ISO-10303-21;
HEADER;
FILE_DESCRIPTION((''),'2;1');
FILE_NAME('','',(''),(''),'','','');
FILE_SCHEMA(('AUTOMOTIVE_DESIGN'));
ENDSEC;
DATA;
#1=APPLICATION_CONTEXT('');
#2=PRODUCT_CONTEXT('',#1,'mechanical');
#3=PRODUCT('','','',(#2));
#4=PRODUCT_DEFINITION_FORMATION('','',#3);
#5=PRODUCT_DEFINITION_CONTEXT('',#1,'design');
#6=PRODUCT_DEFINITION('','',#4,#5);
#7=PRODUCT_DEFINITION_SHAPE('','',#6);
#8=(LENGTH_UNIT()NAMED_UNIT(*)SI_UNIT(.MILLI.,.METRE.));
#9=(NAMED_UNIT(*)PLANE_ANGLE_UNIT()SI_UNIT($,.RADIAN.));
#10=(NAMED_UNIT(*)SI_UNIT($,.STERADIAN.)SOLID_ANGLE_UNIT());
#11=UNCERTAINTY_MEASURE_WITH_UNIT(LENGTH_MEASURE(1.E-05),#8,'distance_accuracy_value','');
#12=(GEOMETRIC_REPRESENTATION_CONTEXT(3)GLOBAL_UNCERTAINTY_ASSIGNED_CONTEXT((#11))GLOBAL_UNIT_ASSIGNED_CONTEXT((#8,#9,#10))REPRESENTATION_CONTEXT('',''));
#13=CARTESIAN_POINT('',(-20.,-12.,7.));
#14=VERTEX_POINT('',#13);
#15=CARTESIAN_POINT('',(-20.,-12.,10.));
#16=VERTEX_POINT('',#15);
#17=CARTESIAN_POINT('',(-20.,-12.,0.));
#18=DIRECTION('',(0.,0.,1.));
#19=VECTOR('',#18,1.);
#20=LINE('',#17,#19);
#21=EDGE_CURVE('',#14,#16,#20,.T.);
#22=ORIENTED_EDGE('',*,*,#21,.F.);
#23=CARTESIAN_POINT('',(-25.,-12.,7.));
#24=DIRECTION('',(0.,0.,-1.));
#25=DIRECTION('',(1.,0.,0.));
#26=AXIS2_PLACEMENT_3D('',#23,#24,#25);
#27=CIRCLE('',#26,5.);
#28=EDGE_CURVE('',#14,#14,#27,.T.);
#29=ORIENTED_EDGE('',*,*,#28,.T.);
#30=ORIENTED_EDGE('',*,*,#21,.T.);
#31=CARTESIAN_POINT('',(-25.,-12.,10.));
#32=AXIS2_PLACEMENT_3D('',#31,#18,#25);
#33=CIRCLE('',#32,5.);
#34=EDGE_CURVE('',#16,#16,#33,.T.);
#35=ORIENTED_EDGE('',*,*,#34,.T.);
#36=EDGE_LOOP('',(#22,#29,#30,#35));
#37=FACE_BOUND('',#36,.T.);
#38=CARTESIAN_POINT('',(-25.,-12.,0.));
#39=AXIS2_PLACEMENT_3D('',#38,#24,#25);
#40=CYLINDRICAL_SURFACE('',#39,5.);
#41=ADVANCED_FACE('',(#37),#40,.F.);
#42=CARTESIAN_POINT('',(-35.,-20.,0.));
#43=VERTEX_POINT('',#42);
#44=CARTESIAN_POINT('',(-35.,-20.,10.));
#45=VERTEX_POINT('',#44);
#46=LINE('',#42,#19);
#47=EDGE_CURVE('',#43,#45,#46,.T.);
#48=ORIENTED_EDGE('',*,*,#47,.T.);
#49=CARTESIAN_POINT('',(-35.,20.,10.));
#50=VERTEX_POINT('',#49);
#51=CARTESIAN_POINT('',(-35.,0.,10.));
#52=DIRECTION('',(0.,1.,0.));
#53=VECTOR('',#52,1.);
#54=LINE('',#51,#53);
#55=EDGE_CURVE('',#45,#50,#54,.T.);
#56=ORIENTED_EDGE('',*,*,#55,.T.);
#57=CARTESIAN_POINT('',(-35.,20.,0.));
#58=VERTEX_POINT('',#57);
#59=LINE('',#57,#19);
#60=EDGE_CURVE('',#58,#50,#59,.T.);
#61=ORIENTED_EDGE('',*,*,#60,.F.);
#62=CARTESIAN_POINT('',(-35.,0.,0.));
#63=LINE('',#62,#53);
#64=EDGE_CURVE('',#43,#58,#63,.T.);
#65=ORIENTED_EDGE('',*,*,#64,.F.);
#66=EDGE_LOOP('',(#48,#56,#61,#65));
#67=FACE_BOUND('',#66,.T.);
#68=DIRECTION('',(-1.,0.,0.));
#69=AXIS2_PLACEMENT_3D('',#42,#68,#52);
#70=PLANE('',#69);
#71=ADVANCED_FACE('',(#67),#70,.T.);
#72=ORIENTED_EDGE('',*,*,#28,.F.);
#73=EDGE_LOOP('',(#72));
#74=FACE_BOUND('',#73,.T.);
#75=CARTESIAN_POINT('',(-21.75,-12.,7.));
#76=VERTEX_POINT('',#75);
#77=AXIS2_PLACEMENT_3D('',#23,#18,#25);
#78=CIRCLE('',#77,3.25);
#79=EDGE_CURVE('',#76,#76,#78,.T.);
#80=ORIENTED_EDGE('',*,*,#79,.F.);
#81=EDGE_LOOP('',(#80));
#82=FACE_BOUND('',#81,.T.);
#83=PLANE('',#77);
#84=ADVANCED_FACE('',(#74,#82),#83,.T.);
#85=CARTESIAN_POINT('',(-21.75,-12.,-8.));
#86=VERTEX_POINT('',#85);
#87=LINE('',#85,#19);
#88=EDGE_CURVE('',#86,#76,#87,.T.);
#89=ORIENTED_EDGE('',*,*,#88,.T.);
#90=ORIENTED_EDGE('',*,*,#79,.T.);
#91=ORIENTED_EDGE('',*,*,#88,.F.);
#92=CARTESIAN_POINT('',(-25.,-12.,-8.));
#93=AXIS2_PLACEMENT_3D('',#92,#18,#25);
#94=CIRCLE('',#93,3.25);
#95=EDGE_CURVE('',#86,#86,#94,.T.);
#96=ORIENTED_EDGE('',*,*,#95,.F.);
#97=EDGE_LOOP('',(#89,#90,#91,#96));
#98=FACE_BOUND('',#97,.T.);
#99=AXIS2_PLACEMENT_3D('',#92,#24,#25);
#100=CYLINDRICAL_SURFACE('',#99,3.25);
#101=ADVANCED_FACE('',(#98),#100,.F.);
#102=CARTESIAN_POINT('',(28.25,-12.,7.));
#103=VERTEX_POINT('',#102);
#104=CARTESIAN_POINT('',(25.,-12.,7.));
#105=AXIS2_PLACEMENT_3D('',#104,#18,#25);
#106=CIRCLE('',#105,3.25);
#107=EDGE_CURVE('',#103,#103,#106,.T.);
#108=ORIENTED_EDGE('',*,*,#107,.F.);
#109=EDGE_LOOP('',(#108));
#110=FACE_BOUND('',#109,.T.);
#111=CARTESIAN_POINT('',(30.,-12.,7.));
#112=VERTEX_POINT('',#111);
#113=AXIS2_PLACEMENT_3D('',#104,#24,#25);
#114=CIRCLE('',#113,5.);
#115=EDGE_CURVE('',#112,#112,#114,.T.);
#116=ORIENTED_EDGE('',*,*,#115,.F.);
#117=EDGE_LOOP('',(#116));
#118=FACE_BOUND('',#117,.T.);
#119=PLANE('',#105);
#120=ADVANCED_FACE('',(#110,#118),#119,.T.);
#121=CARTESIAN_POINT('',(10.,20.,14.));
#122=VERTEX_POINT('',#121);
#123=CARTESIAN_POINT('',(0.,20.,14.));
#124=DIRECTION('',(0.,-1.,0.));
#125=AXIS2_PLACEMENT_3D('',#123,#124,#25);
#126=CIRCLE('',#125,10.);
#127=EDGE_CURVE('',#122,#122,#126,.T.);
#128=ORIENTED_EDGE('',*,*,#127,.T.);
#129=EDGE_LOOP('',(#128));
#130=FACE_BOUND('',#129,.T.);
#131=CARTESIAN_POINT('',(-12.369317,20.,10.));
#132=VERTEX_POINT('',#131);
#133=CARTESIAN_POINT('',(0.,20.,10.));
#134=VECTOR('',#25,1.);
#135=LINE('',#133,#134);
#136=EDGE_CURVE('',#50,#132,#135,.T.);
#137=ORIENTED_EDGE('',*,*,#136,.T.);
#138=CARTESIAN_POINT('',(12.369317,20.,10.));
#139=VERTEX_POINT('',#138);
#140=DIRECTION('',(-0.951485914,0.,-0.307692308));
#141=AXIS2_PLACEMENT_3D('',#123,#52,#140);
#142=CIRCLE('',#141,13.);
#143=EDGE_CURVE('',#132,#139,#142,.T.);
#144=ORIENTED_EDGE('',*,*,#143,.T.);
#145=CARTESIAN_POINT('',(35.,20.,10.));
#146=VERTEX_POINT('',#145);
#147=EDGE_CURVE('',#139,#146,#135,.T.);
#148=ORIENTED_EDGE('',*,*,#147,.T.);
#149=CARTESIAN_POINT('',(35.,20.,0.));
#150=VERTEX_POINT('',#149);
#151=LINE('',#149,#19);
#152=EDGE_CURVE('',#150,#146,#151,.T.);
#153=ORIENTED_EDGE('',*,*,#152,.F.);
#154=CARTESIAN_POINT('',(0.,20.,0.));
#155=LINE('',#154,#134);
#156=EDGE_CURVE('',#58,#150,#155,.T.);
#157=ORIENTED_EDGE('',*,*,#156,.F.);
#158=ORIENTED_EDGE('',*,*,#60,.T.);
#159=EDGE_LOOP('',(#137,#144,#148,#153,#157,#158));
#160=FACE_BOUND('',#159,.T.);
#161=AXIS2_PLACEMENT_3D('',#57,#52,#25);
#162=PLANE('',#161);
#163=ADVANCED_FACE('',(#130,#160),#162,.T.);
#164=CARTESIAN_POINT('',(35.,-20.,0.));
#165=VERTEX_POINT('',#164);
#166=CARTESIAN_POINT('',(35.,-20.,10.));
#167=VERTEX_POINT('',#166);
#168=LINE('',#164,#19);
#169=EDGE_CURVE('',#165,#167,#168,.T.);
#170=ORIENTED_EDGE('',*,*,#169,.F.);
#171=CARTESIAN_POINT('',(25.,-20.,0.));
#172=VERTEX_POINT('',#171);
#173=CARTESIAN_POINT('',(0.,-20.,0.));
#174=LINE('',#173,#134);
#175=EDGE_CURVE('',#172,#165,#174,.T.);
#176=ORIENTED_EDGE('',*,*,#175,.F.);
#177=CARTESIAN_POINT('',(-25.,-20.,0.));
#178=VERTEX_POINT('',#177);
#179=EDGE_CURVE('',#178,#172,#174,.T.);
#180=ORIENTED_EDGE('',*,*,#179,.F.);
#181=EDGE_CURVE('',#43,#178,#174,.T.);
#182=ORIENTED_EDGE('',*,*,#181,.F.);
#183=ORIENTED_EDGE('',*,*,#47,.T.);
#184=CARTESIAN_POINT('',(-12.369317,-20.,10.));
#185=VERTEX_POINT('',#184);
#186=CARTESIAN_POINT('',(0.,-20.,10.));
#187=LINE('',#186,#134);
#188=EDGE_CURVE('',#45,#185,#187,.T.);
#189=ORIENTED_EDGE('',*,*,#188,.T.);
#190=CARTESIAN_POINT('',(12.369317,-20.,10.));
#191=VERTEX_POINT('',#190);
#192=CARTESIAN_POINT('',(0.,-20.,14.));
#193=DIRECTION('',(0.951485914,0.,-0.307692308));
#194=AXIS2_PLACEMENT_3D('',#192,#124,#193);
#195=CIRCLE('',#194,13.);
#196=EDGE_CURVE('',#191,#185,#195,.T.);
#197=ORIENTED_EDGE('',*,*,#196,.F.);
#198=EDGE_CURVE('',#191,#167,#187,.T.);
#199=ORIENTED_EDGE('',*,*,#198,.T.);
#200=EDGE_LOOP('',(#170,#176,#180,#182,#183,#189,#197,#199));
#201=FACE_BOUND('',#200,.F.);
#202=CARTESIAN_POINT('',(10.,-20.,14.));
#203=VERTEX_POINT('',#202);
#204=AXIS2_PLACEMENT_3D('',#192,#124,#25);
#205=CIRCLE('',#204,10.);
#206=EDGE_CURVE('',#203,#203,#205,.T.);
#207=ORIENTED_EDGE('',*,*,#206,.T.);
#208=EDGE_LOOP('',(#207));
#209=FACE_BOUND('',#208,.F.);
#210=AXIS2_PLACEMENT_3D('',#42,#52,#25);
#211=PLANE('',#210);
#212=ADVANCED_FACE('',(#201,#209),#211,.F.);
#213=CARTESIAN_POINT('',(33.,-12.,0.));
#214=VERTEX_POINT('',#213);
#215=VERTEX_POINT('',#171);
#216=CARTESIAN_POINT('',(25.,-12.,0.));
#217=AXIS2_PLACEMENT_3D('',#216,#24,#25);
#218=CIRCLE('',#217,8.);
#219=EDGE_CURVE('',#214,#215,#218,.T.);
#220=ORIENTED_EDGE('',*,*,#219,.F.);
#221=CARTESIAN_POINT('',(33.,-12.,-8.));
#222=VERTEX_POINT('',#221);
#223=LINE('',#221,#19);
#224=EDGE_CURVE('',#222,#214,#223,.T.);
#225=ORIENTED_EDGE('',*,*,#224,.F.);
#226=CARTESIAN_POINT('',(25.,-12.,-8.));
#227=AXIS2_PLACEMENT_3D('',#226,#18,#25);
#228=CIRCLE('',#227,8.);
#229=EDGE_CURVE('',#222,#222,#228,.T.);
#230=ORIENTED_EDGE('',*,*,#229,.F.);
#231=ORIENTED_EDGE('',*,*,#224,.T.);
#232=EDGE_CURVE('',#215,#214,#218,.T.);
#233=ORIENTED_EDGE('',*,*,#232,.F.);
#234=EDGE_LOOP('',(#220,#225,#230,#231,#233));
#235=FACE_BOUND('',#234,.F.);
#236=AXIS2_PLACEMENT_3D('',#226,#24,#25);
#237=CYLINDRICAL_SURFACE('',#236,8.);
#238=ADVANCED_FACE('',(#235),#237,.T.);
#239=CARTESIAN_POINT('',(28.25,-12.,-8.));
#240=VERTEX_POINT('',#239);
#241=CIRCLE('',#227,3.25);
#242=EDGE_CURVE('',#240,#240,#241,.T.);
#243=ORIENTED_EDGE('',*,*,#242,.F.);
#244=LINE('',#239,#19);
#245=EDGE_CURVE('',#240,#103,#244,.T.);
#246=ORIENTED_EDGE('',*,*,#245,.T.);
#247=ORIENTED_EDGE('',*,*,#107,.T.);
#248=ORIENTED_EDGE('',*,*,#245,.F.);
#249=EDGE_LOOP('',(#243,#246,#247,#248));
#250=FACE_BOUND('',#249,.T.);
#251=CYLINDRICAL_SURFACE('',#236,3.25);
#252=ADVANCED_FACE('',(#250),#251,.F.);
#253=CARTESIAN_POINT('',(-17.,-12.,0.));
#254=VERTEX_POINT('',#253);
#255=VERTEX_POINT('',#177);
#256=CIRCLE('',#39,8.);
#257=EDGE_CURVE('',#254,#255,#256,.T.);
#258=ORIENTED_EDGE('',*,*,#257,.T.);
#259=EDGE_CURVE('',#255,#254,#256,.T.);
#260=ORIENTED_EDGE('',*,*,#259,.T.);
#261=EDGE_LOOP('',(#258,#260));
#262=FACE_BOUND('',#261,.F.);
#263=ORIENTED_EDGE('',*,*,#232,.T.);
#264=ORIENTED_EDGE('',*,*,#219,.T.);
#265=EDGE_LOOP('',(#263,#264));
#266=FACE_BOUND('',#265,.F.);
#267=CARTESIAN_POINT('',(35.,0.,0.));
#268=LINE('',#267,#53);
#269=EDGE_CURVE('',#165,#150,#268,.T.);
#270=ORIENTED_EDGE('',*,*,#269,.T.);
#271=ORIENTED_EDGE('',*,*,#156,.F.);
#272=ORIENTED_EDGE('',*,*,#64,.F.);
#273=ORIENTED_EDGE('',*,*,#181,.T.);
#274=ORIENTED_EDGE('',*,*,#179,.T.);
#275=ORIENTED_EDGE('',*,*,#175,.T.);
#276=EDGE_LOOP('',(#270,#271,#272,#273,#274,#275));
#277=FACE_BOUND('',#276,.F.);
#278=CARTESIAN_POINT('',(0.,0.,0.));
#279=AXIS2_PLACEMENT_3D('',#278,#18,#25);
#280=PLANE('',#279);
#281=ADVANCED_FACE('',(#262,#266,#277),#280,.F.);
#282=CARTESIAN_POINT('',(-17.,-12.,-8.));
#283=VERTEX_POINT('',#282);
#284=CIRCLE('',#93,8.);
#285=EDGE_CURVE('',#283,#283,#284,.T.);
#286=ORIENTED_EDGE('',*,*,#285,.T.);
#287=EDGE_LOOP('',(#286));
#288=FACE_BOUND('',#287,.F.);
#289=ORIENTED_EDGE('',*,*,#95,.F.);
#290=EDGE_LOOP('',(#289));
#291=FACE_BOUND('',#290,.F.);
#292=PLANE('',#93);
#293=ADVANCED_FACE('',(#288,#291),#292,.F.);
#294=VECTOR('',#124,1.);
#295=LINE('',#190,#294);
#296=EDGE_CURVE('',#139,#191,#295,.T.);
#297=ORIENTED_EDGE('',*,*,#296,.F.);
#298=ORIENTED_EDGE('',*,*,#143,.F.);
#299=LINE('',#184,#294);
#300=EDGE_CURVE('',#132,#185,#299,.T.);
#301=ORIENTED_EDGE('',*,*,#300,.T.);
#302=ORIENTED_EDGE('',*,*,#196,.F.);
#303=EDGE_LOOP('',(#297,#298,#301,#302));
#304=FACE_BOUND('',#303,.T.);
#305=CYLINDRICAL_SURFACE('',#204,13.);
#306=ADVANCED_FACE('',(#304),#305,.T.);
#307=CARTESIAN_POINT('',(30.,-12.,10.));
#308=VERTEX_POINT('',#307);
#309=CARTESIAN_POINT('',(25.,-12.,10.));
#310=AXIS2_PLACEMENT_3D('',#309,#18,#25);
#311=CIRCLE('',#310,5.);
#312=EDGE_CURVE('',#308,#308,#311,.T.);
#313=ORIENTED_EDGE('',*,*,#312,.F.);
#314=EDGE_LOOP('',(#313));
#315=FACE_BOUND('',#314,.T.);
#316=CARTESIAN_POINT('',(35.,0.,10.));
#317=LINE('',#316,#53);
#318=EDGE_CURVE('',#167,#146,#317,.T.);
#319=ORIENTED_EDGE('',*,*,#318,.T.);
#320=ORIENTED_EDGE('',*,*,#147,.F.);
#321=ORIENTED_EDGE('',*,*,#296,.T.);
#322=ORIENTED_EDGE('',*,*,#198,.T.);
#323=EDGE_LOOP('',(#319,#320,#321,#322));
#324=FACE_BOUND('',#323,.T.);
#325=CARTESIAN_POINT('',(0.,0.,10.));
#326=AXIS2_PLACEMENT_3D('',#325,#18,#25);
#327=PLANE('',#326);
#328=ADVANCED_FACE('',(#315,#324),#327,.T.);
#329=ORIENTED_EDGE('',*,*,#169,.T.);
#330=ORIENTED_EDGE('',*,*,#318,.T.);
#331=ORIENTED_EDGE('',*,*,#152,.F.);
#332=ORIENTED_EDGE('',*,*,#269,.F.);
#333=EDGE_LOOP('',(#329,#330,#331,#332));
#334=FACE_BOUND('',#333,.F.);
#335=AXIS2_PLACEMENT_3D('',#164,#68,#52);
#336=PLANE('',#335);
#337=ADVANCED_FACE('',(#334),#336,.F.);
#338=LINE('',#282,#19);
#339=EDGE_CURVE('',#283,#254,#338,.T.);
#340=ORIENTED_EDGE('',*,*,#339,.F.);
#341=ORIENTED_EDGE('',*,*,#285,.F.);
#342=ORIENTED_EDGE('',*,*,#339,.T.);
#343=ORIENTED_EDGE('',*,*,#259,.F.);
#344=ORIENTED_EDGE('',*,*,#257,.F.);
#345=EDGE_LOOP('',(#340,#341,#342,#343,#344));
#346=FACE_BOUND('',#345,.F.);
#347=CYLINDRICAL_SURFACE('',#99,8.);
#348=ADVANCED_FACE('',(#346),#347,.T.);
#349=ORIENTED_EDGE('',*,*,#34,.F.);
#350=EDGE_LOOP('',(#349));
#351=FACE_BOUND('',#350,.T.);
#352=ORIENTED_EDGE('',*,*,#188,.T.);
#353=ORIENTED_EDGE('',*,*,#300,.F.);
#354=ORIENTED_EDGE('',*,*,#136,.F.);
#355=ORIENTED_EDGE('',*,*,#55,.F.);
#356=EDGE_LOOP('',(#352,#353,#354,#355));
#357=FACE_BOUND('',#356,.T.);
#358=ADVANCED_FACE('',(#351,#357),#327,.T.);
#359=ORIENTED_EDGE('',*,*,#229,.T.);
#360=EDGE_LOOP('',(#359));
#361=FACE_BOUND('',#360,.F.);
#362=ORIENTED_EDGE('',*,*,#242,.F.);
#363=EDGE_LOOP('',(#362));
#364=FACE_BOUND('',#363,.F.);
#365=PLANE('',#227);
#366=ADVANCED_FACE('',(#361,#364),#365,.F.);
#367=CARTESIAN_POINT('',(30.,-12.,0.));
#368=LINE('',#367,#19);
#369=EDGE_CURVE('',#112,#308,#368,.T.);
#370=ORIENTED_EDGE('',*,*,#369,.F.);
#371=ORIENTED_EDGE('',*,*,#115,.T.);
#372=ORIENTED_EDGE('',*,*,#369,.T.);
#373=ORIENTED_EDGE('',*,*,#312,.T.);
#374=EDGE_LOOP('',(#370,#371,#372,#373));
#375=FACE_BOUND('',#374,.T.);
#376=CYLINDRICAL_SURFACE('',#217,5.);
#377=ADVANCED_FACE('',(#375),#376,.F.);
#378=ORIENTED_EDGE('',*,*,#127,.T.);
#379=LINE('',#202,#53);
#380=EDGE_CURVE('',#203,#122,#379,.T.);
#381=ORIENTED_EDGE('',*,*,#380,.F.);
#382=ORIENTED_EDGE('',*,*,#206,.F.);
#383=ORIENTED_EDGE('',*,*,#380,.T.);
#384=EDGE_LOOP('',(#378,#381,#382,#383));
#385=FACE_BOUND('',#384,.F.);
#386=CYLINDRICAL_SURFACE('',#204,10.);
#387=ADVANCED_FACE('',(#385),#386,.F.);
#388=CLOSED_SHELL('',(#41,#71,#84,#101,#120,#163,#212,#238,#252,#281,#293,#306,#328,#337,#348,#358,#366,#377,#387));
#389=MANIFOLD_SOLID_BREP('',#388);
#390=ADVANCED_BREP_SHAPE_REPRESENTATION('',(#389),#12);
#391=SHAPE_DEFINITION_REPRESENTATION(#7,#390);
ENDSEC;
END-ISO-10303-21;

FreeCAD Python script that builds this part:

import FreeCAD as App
import Part
import Sketcher
Q = App.Units.Quantity

doc = App.newDocument("Part")
params = doc.addObject("Spreadsheet::Sheet", "Params")
for row, (alias, value) in enumerate([
    ("sketch1_diameter", "26 mm"),
    ("sketch1_diameter2", "20 mm"),
    ("pad1_length", "40 mm"),
    ("sketch2_diameter", "26 mm"),
    ("pad2_length", "40 mm"),
    ("sketch3_diameter", "10 mm"),
    ("sketch3_width", "70 mm"),
    ("sketch3_height", "40 mm"),
    ("pad3_length", "10 mm"),
    ("sketch4_diameter", "16 mm"),
    ("sketch4_diameter2", "6.5 mm"),
    ("pad4_length", "15 mm"),
], start=1):
    params.set(f"A{row}", alias)
    params.set(f"B{row}", "=" + value)
    params.setAlias(f"B{row}", alias)

body = doc.addObject("PartDesign::Body", "Body")

# Sketch on XY plane
sketch1 = body.newObject("Sketcher::SketchObject", "Sketch")
sketch1.AttachmentSupport = (doc.getObject("XY_Plane"), [""])
sketch1.MapMode = "FlatFace"
sketch1.addGeometry([
    Part.Circle(App.Vector(0, 0, 0), App.Vector(0, 0, 1), 13),
    Part.Circle(App.Vector(0, 0, 0), App.Vector(0, 0, 1), 10),
], False)
sketch1.addConstraint([
    Sketcher.Constraint("Coincident", 0, 3, -1, 1),
    Sketcher.Constraint("Coincident", 1, 3, -1, 1),
    Sketcher.Constraint("Diameter", 0, Q("26 mm")),
    Sketcher.Constraint("Diameter", 1, Q("20 mm")),
])
sketch1.setExpression("Constraints[2]", "Params.sketch1_diameter")
sketch1.setExpression("Constraints[3]", "Params.sketch1_diameter2")
pad1 = body.newObject("PartDesign::Pad", "Pad")
pad1.Profile = sketch1
pad1.setExpression("Length", "Params.pad1_length")
pad1.Reversed = True
body2 = doc.addObject("PartDesign::Body", "Body001")
doc.recompute()

body.Placement = App.Placement(App.Vector(0, 0, 0), App.Rotation(App.Vector(1, 0, 0), 90))
boolean = body2.newObject("PartDesign::Boolean", "Boolean")
boolean.Type = "Fuse"
boolean.addObjects([body])
body3 = doc.addObject("PartDesign::Body", "Body002")
doc.recompute()

body2.Placement = App.Placement(App.Vector(0, -20, 14), App.Rotation(App.Vector(0, 0, 1), 0))
boolean2 = body3.newObject("PartDesign::Boolean", "Boolean001")
boolean2.Type = "Fuse"
boolean2.addObjects([body2])
body4 = doc.addObject("PartDesign::Body", "Body003")

# Sketch on XY plane
sketch2 = body4.newObject("Sketcher::SketchObject", "Sketch001")
sketch2.AttachmentSupport = (doc.getObject("XY_Plane003"), [""])
sketch2.MapMode = "FlatFace"
sketch2.addGeometry(Part.Circle(App.Vector(0, 0, 0), App.Vector(0, 0, 1), 13), False)
sketch2.addConstraint([
    Sketcher.Constraint("Coincident", 0, 3, -1, 1),
    Sketcher.Constraint("Diameter", 0, Q("26 mm")),
])
sketch2.setExpression("Constraints[1]", "Params.sketch2_diameter")
pad2 = body4.newObject("PartDesign::Pad", "Pad001")
pad2.Profile = sketch2
pad2.setExpression("Length", "Params.pad2_length")
pad2.Reversed = True
body5 = doc.addObject("PartDesign::Body", "Body004")
doc.recompute()

body4.Placement = App.Placement(App.Vector(0, 0, 0), App.Rotation(App.Vector(1, 0, 0), 90))
boolean3 = body5.newObject("PartDesign::Boolean", "Boolean002")
boolean3.Type = "Fuse"
boolean3.addObjects([body4])
body6 = doc.addObject("PartDesign::Body", "Body005")
doc.recompute()

body5.Placement = App.Placement(App.Vector(0, -20, 14), App.Rotation(App.Vector(0, 0, 1), 0))
boolean4 = body6.newObject("PartDesign::Boolean", "Boolean003")
boolean4.Type = "Fuse"
boolean4.addObjects([body5])
body7 = doc.addObject("PartDesign::Body", "Body006")

# Sketch on XY plane
sketch3 = body7.newObject("Sketcher::SketchObject", "Sketch002")
sketch3.AttachmentSupport = (doc.getObject("XY_Plane006"), [""])
sketch3.MapMode = "FlatFace"
sketch3.addGeometry([
    Part.LineSegment(App.Vector(-35, 20, 0), App.Vector(-35, -20, 0)),  # 0
    Part.LineSegment(App.Vector(-35, -20, 0), App.Vector(35, -20, 0)),  # 1
    Part.LineSegment(App.Vector(35, -20, 0), App.Vector(35, 20, 0)),  # 2
    Part.LineSegment(App.Vector(35, 20, 0), App.Vector(-35, 20, 0)),  # 3
    Part.Circle(App.Vector(-25, -12, 0), App.Vector(0, 0, 1), 5),  # 4
    Part.Circle(App.Vector(25, -12, 0), App.Vector(0, 0, 1), 5),  # 5
], False)
sketch3.addConstraint([
    Sketcher.Constraint("Coincident", 0, 2, 1, 1),
    Sketcher.Constraint("Coincident", 1, 2, 2, 1),
    Sketcher.Constraint("Coincident", 2, 2, 3, 1),
    Sketcher.Constraint("Coincident", 3, 2, 0, 1),
    Sketcher.Constraint("Vertical", 0),
    Sketcher.Constraint("Horizontal", 1),
    Sketcher.Constraint("Vertical", 2),
    Sketcher.Constraint("Horizontal", 3),
    Sketcher.Constraint("Equal", 4, 5),
    Sketcher.Constraint("Symmetric", 0, 2, 2, 2, -1, 1),
    Sketcher.Constraint("Symmetric", 4, 3, 5, 3, -2),
    Sketcher.Constraint("Diameter", 4, Q("10 mm")),
    Sketcher.Constraint("DistanceX", 1, 1, 1, 2, Q("70 mm")),
    Sketcher.Constraint("DistanceY", 0, 2, 0, 1, Q("40 mm")),
    Sketcher.Constraint("DistanceX", 4, 3, -1, 1, Q("25 mm")),
    Sketcher.Constraint("DistanceY", 4, 3, -1, 1, Q("12 mm")),
])
sketch3.setExpression("Constraints[11]", "Params.sketch3_diameter")
sketch3.setExpression("Constraints[12]", "Params.sketch3_width")
sketch3.setExpression("Constraints[13]", "Params.sketch3_height")
pad3 = body7.newObject("PartDesign::Pad", "Pad002")
pad3.Profile = sketch3
pad3.setExpression("Length", "Params.pad3_length")
doc.recompute()

boolean5 = body7.newObject("PartDesign::Boolean", "Boolean004")
boolean5.Type = "Cut"
boolean5.addObjects([body6])
body8 = doc.addObject("PartDesign::Body", "Body007")
body8.AllowCompound = True

# Sketch on XY plane
sketch4 = body8.newObject("Sketcher::SketchObject", "Sketch003")
sketch4.AttachmentSupport = (doc.getObject("XY_Plane007"), [""])
sketch4.MapMode = "FlatFace"
sketch4.addGeometry([
    Part.Circle(App.Vector(-25, -12, 0), App.Vector(0, 0, 1), 8),
    Part.Circle(App.Vector(-25, -12, 0), App.Vector(0, 0, 1), 3.25),
    Part.Circle(App.Vector(25, -12, 0), App.Vector(0, 0, 1), 8),
    Part.Circle(App.Vector(25, -12, 0), App.Vector(0, 0, 1), 3.25),
], False)
sketch4.addConstraint([
    Sketcher.Constraint("Coincident", 1, 3, 0, 3),
    Sketcher.Constraint("Coincident", 3, 3, 2, 3),
    Sketcher.Constraint("Equal", 0, 2),
    Sketcher.Constraint("Equal", 1, 3),
    Sketcher.Constraint("Symmetric", 0, 3, 2, 3, -2),
    Sketcher.Constraint("Diameter", 0, Q("16 mm")),
    Sketcher.Constraint("Diameter", 1, Q("6.5 mm")),
    Sketcher.Constraint("DistanceX", 0, 3, -1, 1, Q("25 mm")),
    Sketcher.Constraint("DistanceY", 0, 3, -1, 1, Q("12 mm")),
])
sketch4.setExpression("Constraints[5]", "Params.sketch4_diameter")
sketch4.setExpression("Constraints[6]", "Params.sketch4_diameter2")
pad4 = body8.newObject("PartDesign::Pad", "Pad003")
pad4.Profile = sketch4
pad4.setExpression("Length", "Params.pad4_length")
body9 = doc.addObject("PartDesign::Body", "Body008")
body9.AllowCompound = True
doc.recompute()

body8.Placement = App.Placement(App.Vector(0, 0, -8), App.Rotation(App.Vector(0, 0, 1), 0))
boolean6 = body9.newObject("PartDesign::Boolean", "Boolean005")
boolean6.Type = "Fuse"
boolean6.addObjects([body8])
doc.recompute()

boolean7 = body9.newObject("PartDesign::Boolean", "Boolean006")
boolean7.Type = "Fuse"
boolean7.addObjects([body3])
doc.recompute()

boolean8 = body9.newObject("PartDesign::Boolean", "Boolean007")
boolean8.Type = "Fuse"
boolean8.addObjects([body7])

doc.recompute()
